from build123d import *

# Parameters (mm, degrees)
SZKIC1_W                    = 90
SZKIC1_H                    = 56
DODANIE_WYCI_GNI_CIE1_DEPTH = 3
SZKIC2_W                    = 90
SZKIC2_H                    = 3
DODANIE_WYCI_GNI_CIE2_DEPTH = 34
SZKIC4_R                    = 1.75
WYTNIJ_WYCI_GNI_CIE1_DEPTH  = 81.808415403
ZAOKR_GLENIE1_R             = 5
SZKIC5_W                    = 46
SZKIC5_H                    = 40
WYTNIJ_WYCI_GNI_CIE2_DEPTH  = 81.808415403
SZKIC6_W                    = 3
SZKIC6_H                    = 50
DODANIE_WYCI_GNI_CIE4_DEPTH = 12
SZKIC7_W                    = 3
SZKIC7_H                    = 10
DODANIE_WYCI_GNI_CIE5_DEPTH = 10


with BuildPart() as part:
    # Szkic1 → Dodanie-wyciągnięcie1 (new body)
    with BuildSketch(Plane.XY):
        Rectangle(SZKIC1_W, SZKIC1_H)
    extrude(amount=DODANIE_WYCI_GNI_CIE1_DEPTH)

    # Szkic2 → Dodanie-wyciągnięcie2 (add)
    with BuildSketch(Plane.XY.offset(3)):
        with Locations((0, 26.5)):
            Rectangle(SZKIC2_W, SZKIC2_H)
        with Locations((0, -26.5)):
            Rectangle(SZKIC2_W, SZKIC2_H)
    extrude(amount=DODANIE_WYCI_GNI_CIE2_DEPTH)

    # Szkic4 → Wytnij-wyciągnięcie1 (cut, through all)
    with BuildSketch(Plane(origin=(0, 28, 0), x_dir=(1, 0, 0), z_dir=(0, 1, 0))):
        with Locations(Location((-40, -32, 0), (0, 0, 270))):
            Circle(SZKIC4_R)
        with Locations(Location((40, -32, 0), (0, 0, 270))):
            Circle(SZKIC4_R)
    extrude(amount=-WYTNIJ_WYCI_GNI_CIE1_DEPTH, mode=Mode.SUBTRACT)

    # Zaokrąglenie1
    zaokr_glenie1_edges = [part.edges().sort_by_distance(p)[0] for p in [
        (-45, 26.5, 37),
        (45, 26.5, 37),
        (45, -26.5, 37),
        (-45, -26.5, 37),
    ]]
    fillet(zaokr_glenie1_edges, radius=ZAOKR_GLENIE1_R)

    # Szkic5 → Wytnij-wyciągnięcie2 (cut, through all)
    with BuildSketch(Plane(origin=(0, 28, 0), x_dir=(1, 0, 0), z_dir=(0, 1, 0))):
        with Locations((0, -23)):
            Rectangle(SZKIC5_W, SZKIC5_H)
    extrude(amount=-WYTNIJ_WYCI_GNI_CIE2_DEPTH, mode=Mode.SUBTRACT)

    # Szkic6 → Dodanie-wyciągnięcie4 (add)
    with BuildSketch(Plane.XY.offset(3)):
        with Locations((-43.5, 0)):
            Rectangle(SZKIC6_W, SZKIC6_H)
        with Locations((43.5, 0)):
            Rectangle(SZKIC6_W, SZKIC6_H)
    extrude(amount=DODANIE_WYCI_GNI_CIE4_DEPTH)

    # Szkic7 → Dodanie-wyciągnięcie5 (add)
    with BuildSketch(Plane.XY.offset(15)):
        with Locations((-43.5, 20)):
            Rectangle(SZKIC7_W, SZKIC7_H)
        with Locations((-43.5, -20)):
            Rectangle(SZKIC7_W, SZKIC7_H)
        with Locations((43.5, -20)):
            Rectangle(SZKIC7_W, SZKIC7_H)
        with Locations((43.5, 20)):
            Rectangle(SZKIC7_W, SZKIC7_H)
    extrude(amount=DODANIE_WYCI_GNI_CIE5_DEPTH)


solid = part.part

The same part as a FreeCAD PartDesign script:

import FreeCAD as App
import Part
import Sketcher
from FreeCAD import Vector
Q = App.Units.Quantity


def edges_at(feature, points):
    """Names of the edges that pass closest to the given points."""
    edges = feature.Shape.Edges
    near = lambda p: min(range(len(edges)), key=lambda i: edges[i].distToShape(Part.Vertex(*p))[0])
    return sorted({f"Edge{near(p) + 1}" for p in points})

doc = App.newDocument("Part")
body = doc.addObject("PartDesign::Body", "Body")

sketch1 = body.newObject("Sketcher::SketchObject", "Sketch")
sketch1.AttachmentSupport = (doc.getObject("XY_Plane"), [""])
sketch1.MapMode = "FlatFace"
sketch1.addGeometry(Part.LineSegment(Vector(-45, 28, 0), Vector(-45, -28, 0)), False)
sketch1.addGeometry(Part.LineSegment(Vector(-45, -28, 0), Vector(45, -28, 0)), False)
sketch1.addGeometry(Part.LineSegment(Vector(45, -28, 0), Vector(45, 28, 0)), False)
sketch1.addGeometry(Part.LineSegment(Vector(45, 28, 0), Vector(-45, 28, 0)), False)
sketch1.addConstraint(Sketcher.Constraint("Coincident", 0, 2, 1, 1))
sketch1.addConstraint(Sketcher.Constraint("Coincident", 1, 2, 2, 1))
sketch1.addConstraint(Sketcher.Constraint("Coincident", 2, 2, 3, 1))
sketch1.addConstraint(Sketcher.Constraint("Coincident", 3, 2, 0, 1))
sketch1.addConstraint(Sketcher.Constraint("Vertical", 0))
sketch1.addConstraint(Sketcher.Constraint("Horizontal", 1))
sketch1.addConstraint(Sketcher.Constraint("Vertical", 2))
sketch1.addConstraint(Sketcher.Constraint("Horizontal", 3))
sketch1.addConstraint(Sketcher.Constraint("Symmetric", 0, 2, 2, 2, -1, 1))
sketch1.addConstraint(Sketcher.Constraint("DistanceX", 1, 1, 1, 2, Q("90 mm")))
sketch1.addConstraint(Sketcher.Constraint("DistanceY", 0, 2, 0, 1, Q("56 mm")))
pad1 = body.newObject("PartDesign::Pad", "Pad")
pad1.Profile = sketch1
pad1.Length = 3

sketch2 = body.newObject("Sketcher::SketchObject", "Sketch001")
sketch2.AttachmentSupport = (doc.getObject("XY_Plane"), [""])
sketch2.MapMode = "FlatFace"
sketch2.AttachmentOffset = App.Placement(Vector(0, 0, 3), App.Rotation())
sketch2.addGeometry(Part.LineSegment(Vector(-45, 28, 0), Vector(-45, 25, 0)), False)
sketch2.addGeometry(Part.LineSegment(Vector(-45, 25, 0), Vector(45, 25, 0)), False)
sketch2.addGeometry(Part.LineSegment(Vector(45, 25, 0), Vector(45, 28, 0)), False)
sketch2.addGeometry(Part.LineSegment(Vector(45, 28, 0), Vector(-45, 28, 0)), False)
sketch2.addGeometry(Part.LineSegment(Vector(-45, -25, 0), Vector(-45, -28, 0)), False)
sketch2.addGeometry(Part.LineSegment(Vector(-45, -28, 0), Vector(45, -28, 0)), False)
sketch2.addGeometry(Part.LineSegment(Vector(45, -28, 0), Vector(45, -25, 0)), False)
sketch2.addGeometry(Part.LineSegment(Vector(45, -25, 0), Vector(-45, -25, 0)), False)
sketch2.addConstraint(Sketcher.Constraint("Coincident", 0, 2, 1, 1))
sketch2.addConstraint(Sketcher.Constraint("Coincident", 1, 2, 2, 1))
sketch2.addConstraint(Sketcher.Constraint("Coincident", 2, 2, 3, 1))
sketch2.addConstraint(Sketcher.Constraint("Coincident", 3, 2, 0, 1))
sketch2.addConstraint(Sketcher.Constraint("Coincident", 4, 2, 5, 1))
sketch2.addConstraint(Sketcher.Constraint("Coincident", 5, 2, 6, 1))
sketch2.addConstraint(Sketcher.Constraint("Coincident", 6, 2, 7, 1))
sketch2.addConstraint(Sketcher.Constraint("Coincident", 7, 2, 4, 1))
sketch2.addConstraint(Sketcher.Constraint("Vertical", 0))
sketch2.addConstraint(Sketcher.Constraint("Horizontal", 1))
sketch2.addConstraint(Sketcher.Constraint("Vertical", 2))
sketch2.addConstraint(Sketcher.Constraint("Horizontal", 3))
sketch2.addConstraint(Sketcher.Constraint("Vertical", 4))
sketch2.addConstraint(Sketcher.Constraint("Horizontal", 5))
sketch2.addConstraint(Sketcher.Constraint("Vertical", 6))
sketch2.addConstraint(Sketcher.Constraint("Horizontal", 7))
sketch2.addConstraint(Sketcher.Constraint("Symmetric", 2, 2, 4, 2, -1, 1))
sketch2.addConstraint(Sketcher.Constraint("Symmetric", 0, 2, 6, 2, -1, 1))
sketch2.addConstraint(Sketcher.Constraint("Vertical", 3, 2, 4, 2))
sketch2.addConstraint(Sketcher.Constraint("DistanceX", 1, 1, 1, 2, Q("90 mm")))
sketch2.addConstraint(Sketcher.Constraint("DistanceY", 0, 2, 0, 1, Q("3 mm")))
sketch2.addConstraint(Sketcher.Constraint("DistanceY", -1, 1, 0, 2, Q("25 mm")))
pad2 = body.newObject("PartDesign::Pad", "Pad001")
pad2.Profile = sketch2
pad2.Length = 34

sketch3 = body.newObject("Sketcher::SketchObject", "Sketch002")
sketch3.AttachmentSupport = (doc.getObject("XZ_Plane"), [""])
sketch3.MapMode = "FlatFace"
sketch3.AttachmentOffset = App.Placement(Vector(0, 0, -28), App.Rotation())
sketch3.addGeometry(Part.Circle(Vector(-40, 32, 0), Vector(0, 0, 1), 1.8), False)
sketch3.addGeometry(Part.Circle(Vector(40, 32, 0), Vector(0, 0, 1), 1.8), False)
sketch3.addConstraint(Sketcher.Constraint("Equal", 0, 1))
sketch3.addConstraint(Sketcher.Constraint("Symmetric", 0, 3, 1, 3, -2))
sketch3.addConstraint(Sketcher.Constraint("Diameter", 0, Q("3.5 mm")))
sketch3.addConstraint(Sketcher.Constraint("DistanceX", 0, 3, -1, 1, Q("40 mm")))
sketch3.addConstraint(Sketcher.Constraint("DistanceY", -1, 1, 0, 3, Q("32 mm")))
pocket1 = body.newObject("PartDesign::Pocket", "Pocket")
pocket1.Profile = sketch3
pocket1.Type = "ThroughAll"
pocket1.Reversed = True
doc.recompute()

fillet = body.newObject("PartDesign::Fillet", "Fillet")
fillet.Base = (pocket1, edges_at(pocket1, [
    (-45, 26.5, 37),
    (45, 26.5, 37),
    (45, -26.5, 37),
    (-45, -26.5, 37),
]))
fillet.Radius = 5

sketch4 = body.newObject("Sketcher::SketchObject", "Sketch003")
sketch4.AttachmentSupport = (doc.getObject("XZ_Plane"), [""])
sketch4.MapMode = "FlatFace"
sketch4.AttachmentOffset = App.Placement(Vector(0, 0, -28), App.Rotation())
sketch4.addGeometry(Part.LineSegment(Vector(-23, 3, 0), Vector(-23, 43, 0)), False)
sketch4.addGeometry(Part.LineSegment(Vector(-23, 43, 0), Vector(23, 43, 0)), False)
sketch4.addGeometry(Part.LineSegment(Vector(23, 43, 0), Vector(23, 3, 0)), False)
sketch4.addGeometry(Part.LineSegment(Vector(23, 3, 0), Vector(-23, 3, 0)), False)
sketch4.addConstraint(Sketcher.Constraint("Coincident", 0, 2, 1, 1))
sketch4.addConstraint(Sketcher.Constraint("Coincident", 1, 2, 2, 1))
sketch4.addConstraint(Sketcher.Constraint("Coincident", 2, 2, 3, 1))
sketch4.addConstraint(Sketcher.Constraint("Coincident", 3, 2, 0, 1))
sketch4.addConstraint(Sketcher.Constraint("Vertical", 0))
sketch4.addConstraint(Sketcher.Constraint("Horizontal", 1))
sketch4.addConstraint(Sketcher.Constraint("Vertical", 2))
sketch4.addConstraint(Sketcher.Constraint("Horizontal", 3))
sketch4.addConstraint(Sketcher.Constraint("DistanceX", 1, 1, 1, 2, Q("46 mm")))
sketch4.addConstraint(Sketcher.Constraint("DistanceY", 0, 1, 0, 2, Q("40 mm")))
sketch4.addConstraint(Sketcher.Constraint("DistanceX", 0, 2, -1, 1, Q("23 mm")))
sketch4.addConstraint(Sketcher.Constraint("DistanceY", -1, 1, 0, 2, Q("43 mm")))
pocket2 = body.newObject("PartDesign::Pocket", "Pocket001")
pocket2.Profile = sketch4
pocket2.Type = "ThroughAll"
pocket2.Reversed = True

sketch5 = body.newObject("Sketcher::SketchObject", "Sketch004")
sketch5.AttachmentSupport = (doc.getObject("XY_Plane"), [""])
sketch5.MapMode = "FlatFace"
sketch5.AttachmentOffset = App.Placement(Vector(0, 0, 3), App.Rotation())
sketch5.addGeometry(Part.LineSegment(Vector(-45, 25, 0), Vector(-45, -25, 0)), False)
sketch5.addGeometry(Part.LineSegment(Vector(-45, -25, 0), Vector(-42, -25, 0)), False)
sketch5.addGeometry(Part.LineSegment(Vector(-42, -25, 0), Vector(-42, 25, 0)), False)
sketch5.addGeometry(Part.LineSegment(Vector(-42, 25, 0), Vector(-45, 25, 0)), False)
sketch5.addGeometry(Part.LineSegment(Vector(42, 25, 0), Vector(42, -25, 0)), False)
sketch5.addGeometry(Part.LineSegment(Vector(42, -25, 0), Vector(45, -25, 0)), False)
sketch5.addGeometry(Part.LineSegment(Vector(45, -25, 0), Vector(45, 25, 0)), False)
sketch5.addGeometry(Part.LineSegment(Vector(45, 25, 0), Vector(42, 25, 0)), False)
sketch5.addConstraint(Sketcher.Constraint("Coincident", 0, 2, 1, 1))
sketch5.addConstraint(Sketcher.Constraint("Coincident", 1, 2, 2, 1))
sketch5.addConstraint(Sketcher.Constraint("Coincident", 2, 2, 3, 1))
sketch5.addConstraint(Sketcher.Constraint("Coincident", 3, 2, 0, 1))
sketch5.addConstraint(Sketcher.Constraint("Coincident", 4, 2, 5, 1))
sketch5.addConstraint(Sketcher.Constraint("Coincident", 5, 2, 6, 1))
sketch5.addConstraint(Sketcher.Constraint("Coincident", 6, 2, 7, 1))
sketch5.addConstraint(Sketcher.Constraint("Coincident", 7, 2, 4, 1))
sketch5.addConstraint(Sketcher.Constraint("Vertical", 0))
sketch5.addConstraint(Sketcher.Constraint("Horizontal", 1))
sketch5.addConstraint(Sketcher.Constraint("Vertical", 2))
sketch5.addConstraint(Sketcher.Constraint("Horizontal", 3))
sketch5.addConstraint(Sketcher.Constraint("Vertical", 4))
sketch5.addConstraint(Sketcher.Constraint("Horizontal", 5))
sketch5.addConstraint(Sketcher.Constraint("Vertical", 6))
sketch5.addConstraint(Sketcher.Constraint("Horizontal", 7))
sketch5.addConstraint(Sketcher.Constraint("Symmetric", 2, 2, 4, 2, -1, 1))
sketch5.addConstraint(Sketcher.Constraint("Symmetric", 0, 2, 6, 2, -1, 1))
sketch5.addConstraint(Sketcher.Constraint("Horizontal", 1, 2, 4, 2))
sketch5.addConstraint(Sketcher.Constraint("DistanceX", 1, 1, 1, 2, Q("3 mm")))
sketch5.addConstraint(Sketcher.Constraint("DistanceY", 0, 2, 0, 1, Q("50 mm")))
sketch5.addConstraint(Sketcher.Constraint("DistanceX", 0, 2, -1, 1, Q("45 mm")))
pad3 = body.newObject("PartDesign::Pad", "Pad002")
pad3.Profile = sketch5
pad3.Length = 12

sketch6 = body.newObject("Sketcher::SketchObject", "Sketch005")
sketch6.AttachmentSupport = (doc.getObject("XY_Plane"), [""])
sketch6.MapMode = "FlatFace"
sketch6.AttachmentOffset = App.Placement(Vector(0, 0, 15), App.Rotation())
sketch6.addGeometry(Part.LineSegment(Vector(-45, 25, 0), Vector(-45, 15, 0)), False)
sketch6.addGeometry(Part.LineSegment(Vector(-45, 15, 0), Vector(-42, 15, 0)), False)
sketch6.addGeometry(Part.LineSegment(Vector(-42, 15, 0), Vector(-42, 25, 0)), False)
sketch6.addGeometry(Part.LineSegment(Vector(-42, 25, 0), Vector(-45, 25, 0)), False)
sketch6.addGeometry(Part.LineSegment(Vector(-45, -15, 0), Vector(-45, -25, 0)), False)
sketch6.addGeometry(Part.LineSegment(Vector(-45, -25, 0), Vector(-42, -25, 0)), False)
sketch6.addGeometry(Part.LineSegment(Vector(-42, -25, 0), Vector(-42, -15, 0)), False)
sketch6.addGeometry(Part.LineSegment(Vector(-42, -15, 0), Vector(-45, -15, 0)), False)
sketch6.addGeometry(Part.LineSegment(Vector(42, -15, 0), Vector(42, -25, 0)), False)
sketch6.addGeometry(Part.LineSegment(Vector(42, -25, 0), Vector(45, -25, 0)), False)
sketch6.addGeometry(Part.LineSegment(Vector(45, -25, 0), Vector(45, -15, 0)), False)
sketch6.addGeometry(Part.LineSegment(Vector(45, -15, 0), Vector(42, -15, 0)), False)
sketch6.addGeometry(Part.LineSegment(Vector(42, 25, 0), Vector(42, 15, 0)), False)
sketch6.addGeometry(Part.LineSegment(Vector(42, 15, 0), Vector(45, 15, 0)), False)
sketch6.addGeometry(Part.LineSegment(Vector(45, 15, 0), Vector(45, 25, 0)), False)
sketch6.addGeometry(Part.LineSegment(Vector(45, 25, 0), Vector(42, 25, 0)), False)
sketch6.addConstraint(Sketcher.Constraint("Coincident", 0, 2, 1, 1))
sketch6.addConstraint(Sketcher.Constraint("Coincident", 1, 2, 2, 1))
sketch6.addConstraint(Sketcher.Constraint("Coincident", 2, 2, 3, 1))
sketch6.addConstraint(Sketcher.Constraint("Coincident", 3, 2, 0, 1))
sketch6.addConstraint(Sketcher.Constraint("Coincident", 4, 2, 5, 1))
sketch6.addConstraint(Sketcher.Constraint("Coincident", 5, 2, 6, 1))
sketch6.addConstraint(Sketcher.Constraint("Coincident", 6, 2, 7, 1))
sketch6.addConstraint(Sketcher.Constraint("Coincident", 7, 2, 4, 1))
sketch6.addConstraint(Sketcher.Constraint("Coincident", 8, 2, 9, 1))
sketch6.addConstraint(Sketcher.Constraint("Coincident", 9, 2, 10, 1))
sketch6.addConstraint(Sketcher.Constraint("Coincident", 10, 2, 11, 1))
sketch6.addConstraint(Sketcher.Constraint("Coincident", 11, 2, 8, 1))
sketch6.addConstraint(Sketcher.Constraint("Coincident", 12, 2, 13, 1))
sketch6.addConstraint(Sketcher.Constraint("Coincident", 13, 2, 14, 1))
sketch6.addConstraint(Sketcher.Constraint("Coincident", 14, 2, 15, 1))
sketch6.addConstraint(Sketcher.Constraint("Coincident", 15, 2, 12, 1))
sketch6.addConstraint(Sketcher.Constraint("Vertical", 0))
sketch6.addConstraint(Sketcher.Constraint("Horizontal", 1))
sketch6.addConstraint(Sketcher.Constraint("Vertical", 2))
sketch6.addConstraint(Sketcher.Constraint("Horizontal", 3))
sketch6.addConstraint(Sketcher.Constraint("Vertical", 4))
sketch6.addConstraint(Sketcher.Constraint("Horizontal", 5))
sketch6.addConstraint(Sketcher.Constraint("Vertical", 6))
sketch6.addConstraint(Sketcher.Constraint("Horizontal", 7))
sketch6.addConstraint(Sketcher.Constraint("Vertical", 8))
sketch6.addConstraint(Sketcher.Constraint("Horizontal", 9))
sketch6.addConstraint(Sketcher.Constraint("Vertical", 10))
sketch6.addConstraint(Sketcher.Constraint("Horizontal", 11))
sketch6.addConstraint(Sketcher.Constraint("Vertical", 12))
sketch6.addConstraint(Sketcher.Constraint("Horizontal", 13))
sketch6.addConstraint(Sketcher.Constraint("Vertical", 14))
sketch6.addConstraint(Sketcher.Constraint("Horizontal", 15))
sketch6.addConstraint(Sketcher.Constraint("Symmetric", 2, 2, 8, 2, -1, 1))
sketch6.addConstraint(Sketcher.Constraint("Symmetric", 0, 2, 10, 2, -1, 1))
sketch6.addConstraint(Sketcher.Constraint("Symmetric", 6, 2, 12, 2, -1, 1))
sketch6.addConstraint(Sketcher.Constraint("Symmetric", 4, 2, 14, 2, -1, 1))
sketch6.addConstraint(Sketcher.Constraint("Symmetric", 5, 2, 8, 2, -2))
sketch6.addConstraint(Sketcher.Constraint("Symmetric", 7, 2, 10, 2, -2))
sketch6.addConstraint(Sketcher.Constraint("DistanceX", 1, 1, 1, 2, Q("3 mm")))
sketch6.addConstraint(Sketcher.Constraint("DistanceY", 0, 2, 0, 1, Q("10 mm")))
sketch6.addConstraint(Sketcher.Constraint("DistanceX", 0, 2, -1, 1, Q("45 mm")))
sketch6.addConstraint(Sketcher.Constraint("DistanceY", -1, 1, 0, 2, Q("15 mm")))
pad4 = body.newObject("PartDesign::Pad", "Pad003")
pad4.Profile = sketch6
pad4.Length = 10

doc.recompute()
